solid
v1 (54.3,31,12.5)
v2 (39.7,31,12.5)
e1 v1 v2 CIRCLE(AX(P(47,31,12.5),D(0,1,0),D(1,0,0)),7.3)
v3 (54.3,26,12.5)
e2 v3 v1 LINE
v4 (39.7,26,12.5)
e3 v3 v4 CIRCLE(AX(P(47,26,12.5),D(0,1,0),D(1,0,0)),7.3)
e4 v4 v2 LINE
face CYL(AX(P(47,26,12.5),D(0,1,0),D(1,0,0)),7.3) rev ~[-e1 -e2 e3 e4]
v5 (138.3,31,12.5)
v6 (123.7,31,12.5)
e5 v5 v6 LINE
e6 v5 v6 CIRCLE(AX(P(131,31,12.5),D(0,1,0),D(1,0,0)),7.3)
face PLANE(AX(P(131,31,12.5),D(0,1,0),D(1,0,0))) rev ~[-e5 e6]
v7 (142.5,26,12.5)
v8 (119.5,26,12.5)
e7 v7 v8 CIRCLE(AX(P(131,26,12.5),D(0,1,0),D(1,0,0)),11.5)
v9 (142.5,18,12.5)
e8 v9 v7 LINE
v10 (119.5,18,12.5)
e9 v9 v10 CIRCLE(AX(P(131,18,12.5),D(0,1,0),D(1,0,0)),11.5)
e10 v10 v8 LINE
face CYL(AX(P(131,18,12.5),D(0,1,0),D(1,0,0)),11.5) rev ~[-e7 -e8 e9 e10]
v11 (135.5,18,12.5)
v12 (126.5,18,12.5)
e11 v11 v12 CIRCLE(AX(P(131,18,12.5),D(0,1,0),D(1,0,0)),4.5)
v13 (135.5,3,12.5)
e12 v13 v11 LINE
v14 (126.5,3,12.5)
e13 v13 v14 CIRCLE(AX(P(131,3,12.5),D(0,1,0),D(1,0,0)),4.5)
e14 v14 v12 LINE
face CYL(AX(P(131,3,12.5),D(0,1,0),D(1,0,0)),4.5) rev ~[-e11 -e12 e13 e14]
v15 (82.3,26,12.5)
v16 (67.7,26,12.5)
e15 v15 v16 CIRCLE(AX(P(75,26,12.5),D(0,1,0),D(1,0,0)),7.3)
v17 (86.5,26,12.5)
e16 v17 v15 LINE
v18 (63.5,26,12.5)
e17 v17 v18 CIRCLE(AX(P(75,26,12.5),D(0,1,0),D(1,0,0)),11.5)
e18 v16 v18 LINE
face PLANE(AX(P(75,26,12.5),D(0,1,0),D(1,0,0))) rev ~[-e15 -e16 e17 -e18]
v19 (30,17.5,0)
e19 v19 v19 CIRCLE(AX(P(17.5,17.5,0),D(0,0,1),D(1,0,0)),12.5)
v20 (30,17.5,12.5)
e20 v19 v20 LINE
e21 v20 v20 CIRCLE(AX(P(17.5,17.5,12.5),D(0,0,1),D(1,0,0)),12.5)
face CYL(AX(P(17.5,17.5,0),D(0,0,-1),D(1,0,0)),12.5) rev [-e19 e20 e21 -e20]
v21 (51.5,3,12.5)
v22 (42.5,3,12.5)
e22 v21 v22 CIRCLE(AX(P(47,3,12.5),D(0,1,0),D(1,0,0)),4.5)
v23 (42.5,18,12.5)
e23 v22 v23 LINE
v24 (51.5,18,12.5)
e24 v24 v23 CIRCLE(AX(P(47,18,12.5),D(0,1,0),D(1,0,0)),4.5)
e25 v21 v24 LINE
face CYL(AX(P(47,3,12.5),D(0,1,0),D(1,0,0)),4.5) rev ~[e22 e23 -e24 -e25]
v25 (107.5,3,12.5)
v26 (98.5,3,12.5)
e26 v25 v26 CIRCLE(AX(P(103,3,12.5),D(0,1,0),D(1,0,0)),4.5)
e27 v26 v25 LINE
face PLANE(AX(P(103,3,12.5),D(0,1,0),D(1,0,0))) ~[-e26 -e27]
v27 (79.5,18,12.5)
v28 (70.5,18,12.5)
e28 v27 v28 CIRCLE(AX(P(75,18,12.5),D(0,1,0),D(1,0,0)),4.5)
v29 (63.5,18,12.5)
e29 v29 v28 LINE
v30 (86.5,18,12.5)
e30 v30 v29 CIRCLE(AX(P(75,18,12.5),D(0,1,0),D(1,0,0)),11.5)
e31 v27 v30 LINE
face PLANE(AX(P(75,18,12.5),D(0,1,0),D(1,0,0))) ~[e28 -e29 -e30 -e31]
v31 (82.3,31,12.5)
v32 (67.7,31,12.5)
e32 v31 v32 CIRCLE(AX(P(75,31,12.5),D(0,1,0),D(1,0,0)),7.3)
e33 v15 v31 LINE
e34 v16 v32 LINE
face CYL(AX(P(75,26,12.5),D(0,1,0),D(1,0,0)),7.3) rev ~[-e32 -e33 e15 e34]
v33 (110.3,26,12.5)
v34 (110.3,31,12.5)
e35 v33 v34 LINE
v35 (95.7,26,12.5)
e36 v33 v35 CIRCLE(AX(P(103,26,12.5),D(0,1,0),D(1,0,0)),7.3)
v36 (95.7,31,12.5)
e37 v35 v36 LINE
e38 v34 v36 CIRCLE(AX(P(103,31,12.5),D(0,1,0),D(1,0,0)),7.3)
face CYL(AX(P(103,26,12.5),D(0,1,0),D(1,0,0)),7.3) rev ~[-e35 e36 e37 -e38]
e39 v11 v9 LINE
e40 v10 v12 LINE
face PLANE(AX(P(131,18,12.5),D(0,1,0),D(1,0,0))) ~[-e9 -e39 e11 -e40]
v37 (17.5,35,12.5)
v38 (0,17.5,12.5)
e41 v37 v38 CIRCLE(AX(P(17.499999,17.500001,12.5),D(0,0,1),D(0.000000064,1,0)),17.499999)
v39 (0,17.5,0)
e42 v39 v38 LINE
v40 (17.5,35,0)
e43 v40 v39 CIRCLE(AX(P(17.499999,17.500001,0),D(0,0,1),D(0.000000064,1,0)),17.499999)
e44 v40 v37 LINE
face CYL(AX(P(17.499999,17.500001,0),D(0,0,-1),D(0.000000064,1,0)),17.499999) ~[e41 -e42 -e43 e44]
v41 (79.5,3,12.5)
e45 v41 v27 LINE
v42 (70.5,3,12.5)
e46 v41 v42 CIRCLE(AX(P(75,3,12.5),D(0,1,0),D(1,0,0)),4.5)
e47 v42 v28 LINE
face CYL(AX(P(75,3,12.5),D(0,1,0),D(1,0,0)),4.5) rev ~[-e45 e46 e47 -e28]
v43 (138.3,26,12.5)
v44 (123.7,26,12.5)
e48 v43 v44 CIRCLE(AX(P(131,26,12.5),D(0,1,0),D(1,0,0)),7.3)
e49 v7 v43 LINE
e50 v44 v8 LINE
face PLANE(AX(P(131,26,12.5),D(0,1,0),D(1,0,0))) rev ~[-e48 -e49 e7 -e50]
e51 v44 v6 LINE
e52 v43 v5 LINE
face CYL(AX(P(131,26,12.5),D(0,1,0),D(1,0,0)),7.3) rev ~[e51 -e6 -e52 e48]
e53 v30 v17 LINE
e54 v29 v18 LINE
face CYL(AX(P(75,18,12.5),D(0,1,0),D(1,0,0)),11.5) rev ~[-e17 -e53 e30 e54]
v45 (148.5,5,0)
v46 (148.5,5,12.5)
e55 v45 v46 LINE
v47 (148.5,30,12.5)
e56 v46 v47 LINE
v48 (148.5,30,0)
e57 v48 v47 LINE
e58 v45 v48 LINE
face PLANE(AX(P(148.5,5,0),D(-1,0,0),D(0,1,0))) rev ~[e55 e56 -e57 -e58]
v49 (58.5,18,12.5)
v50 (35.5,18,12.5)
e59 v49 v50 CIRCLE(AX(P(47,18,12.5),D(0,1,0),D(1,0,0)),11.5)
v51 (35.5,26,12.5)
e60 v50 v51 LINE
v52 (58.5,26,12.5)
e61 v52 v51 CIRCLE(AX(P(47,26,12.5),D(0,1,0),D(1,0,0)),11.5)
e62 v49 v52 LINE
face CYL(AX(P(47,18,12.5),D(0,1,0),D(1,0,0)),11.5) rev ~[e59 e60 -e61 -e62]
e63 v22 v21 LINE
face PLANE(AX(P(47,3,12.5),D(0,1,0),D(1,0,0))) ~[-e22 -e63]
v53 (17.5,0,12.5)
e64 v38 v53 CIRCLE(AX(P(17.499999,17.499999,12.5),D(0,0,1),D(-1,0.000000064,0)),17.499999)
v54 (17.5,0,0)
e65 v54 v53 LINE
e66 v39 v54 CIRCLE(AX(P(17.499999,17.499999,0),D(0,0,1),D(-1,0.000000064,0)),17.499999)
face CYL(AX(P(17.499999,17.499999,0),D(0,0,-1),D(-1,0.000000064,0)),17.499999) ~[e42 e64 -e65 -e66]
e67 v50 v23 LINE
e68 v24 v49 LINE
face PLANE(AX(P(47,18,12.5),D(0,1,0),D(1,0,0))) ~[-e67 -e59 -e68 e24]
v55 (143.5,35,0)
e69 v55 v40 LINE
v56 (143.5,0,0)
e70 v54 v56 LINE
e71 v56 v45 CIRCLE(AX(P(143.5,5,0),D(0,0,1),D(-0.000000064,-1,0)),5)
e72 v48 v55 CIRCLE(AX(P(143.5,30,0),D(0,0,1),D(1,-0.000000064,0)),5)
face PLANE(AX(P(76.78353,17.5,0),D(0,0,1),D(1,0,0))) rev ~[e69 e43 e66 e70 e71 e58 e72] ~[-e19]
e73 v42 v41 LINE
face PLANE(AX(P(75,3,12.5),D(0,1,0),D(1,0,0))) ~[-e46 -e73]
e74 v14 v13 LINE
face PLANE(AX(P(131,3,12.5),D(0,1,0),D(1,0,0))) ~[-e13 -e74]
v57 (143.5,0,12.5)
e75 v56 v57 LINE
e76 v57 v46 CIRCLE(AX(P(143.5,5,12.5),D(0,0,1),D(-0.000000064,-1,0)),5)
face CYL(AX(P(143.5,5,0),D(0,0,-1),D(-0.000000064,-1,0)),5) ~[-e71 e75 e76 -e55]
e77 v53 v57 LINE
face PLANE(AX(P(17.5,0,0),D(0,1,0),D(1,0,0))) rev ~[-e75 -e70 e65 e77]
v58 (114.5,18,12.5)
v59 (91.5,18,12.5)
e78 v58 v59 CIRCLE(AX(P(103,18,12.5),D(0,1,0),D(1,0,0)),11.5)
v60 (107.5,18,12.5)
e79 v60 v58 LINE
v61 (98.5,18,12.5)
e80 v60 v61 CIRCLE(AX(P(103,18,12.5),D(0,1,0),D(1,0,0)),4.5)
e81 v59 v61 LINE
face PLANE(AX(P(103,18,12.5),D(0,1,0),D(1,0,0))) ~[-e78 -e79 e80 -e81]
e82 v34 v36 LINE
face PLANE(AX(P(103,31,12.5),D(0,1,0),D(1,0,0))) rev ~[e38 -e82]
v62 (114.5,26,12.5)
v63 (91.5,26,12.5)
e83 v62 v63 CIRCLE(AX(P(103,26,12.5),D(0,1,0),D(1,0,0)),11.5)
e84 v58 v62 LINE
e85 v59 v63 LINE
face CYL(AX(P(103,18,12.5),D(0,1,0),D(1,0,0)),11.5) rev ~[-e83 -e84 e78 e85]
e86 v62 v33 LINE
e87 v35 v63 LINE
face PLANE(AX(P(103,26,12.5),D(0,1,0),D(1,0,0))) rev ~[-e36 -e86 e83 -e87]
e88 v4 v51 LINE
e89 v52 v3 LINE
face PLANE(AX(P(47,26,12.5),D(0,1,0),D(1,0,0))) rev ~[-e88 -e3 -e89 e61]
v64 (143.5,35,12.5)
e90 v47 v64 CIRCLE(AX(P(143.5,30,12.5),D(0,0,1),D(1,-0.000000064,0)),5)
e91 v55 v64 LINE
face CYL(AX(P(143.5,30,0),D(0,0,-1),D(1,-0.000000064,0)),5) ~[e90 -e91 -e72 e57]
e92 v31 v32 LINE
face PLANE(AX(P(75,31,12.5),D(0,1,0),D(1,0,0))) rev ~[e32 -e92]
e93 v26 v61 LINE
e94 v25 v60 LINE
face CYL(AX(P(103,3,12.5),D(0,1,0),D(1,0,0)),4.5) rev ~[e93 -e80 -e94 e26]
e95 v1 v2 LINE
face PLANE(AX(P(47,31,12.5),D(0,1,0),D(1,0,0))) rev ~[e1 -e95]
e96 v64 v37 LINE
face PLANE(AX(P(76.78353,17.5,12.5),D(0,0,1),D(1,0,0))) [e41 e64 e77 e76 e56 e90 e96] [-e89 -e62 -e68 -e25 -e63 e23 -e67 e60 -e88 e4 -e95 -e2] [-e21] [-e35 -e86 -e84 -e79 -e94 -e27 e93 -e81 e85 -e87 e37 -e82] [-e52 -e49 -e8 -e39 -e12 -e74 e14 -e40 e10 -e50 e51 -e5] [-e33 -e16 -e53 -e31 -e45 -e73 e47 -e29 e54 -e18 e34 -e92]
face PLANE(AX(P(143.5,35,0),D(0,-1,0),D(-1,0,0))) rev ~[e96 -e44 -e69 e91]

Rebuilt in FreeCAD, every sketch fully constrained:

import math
import FreeCAD as App
import Part
import Sketcher

V = App.Vector

doc = App.newDocument("Part")
params = doc.addObject("Spreadsheet::Sheet", "Params")
for row, (alias, value) in enumerate([
    ("sketch1_diameter", "25 mm"),
    ("sketch1_radius", "5 mm"),
    ("sketch1_radius2", "17.499999 mm"),
    ("sketch1_width", "126 mm"),
    ("pad1_length", "12.5 mm"),
    ("sketch2_width", "7 mm"),
    ("sketch2_height", "15 mm"),
    ("sketch2_height2", "8 mm"),
    ("sketch2_height3", "5 mm"),
    ("sketch2_width2", "4.5 mm"),
    ("groove_angle", "360 deg"),
    ("sketch3_width", "7 mm"),
    ("sketch3_height", "15 mm"),
    ("sketch3_height2", "8 mm"),
    ("sketch3_height3", "5 mm"),
    ("sketch3_width2", "4.5 mm"),
    ("groove2_angle", "360 deg"),
    ("sketch4_width", "7 mm"),
    ("sketch4_height", "15 mm"),
    ("sketch4_height2", "8 mm"),
    ("sketch4_height3", "5 mm"),
    ("sketch4_width2", "4.5 mm"),
    ("groove3_angle", "360 deg"),
    ("sketch5_width", "7 mm"),
    ("sketch5_height", "15 mm"),
    ("sketch5_height2", "8 mm"),
    ("sketch5_height3", "5 mm"),
    ("sketch5_width2", "4.5 mm"),
    ("groove4_angle", "360 deg"),
], start=1):
    params.set(f"A{row}", alias)
    params.set(f"B{row}", "=" + value)
    params.setAlias(f"B{row}", alias)

body = doc.addObject("PartDesign::Body", "Body")

# Sketch on XY plane
sketch1 = body.newObject("Sketcher::SketchObject", "Sketch")
sketch1.AttachmentSupport = (doc.getObject("XY_Plane"), [""])
sketch1.MapMode = "FlatFace"
sketch1.addGeometry([
    Part.ArcOfCircle(Part.Circle(V(17.5, 17.5, 0), V(0, 0, 1), 17.5), math.radians(180), math.radians(270)),  # 0
    Part.LineSegment(V(17.5, 0, 0), V(143.5, 0, 0)),  # 1
    Part.ArcOfCircle(Part.Circle(V(143.5, 5, 0), V(0, 0, 1), 5), math.radians(-90), math.radians(0)),  # 2
    Part.LineSegment(V(148.5, 5, 0), V(148.5, 30, 0)),  # 3
    Part.ArcOfCircle(Part.Circle(V(143.5, 30, 0), V(0, 0, 1), 5), math.radians(0), math.radians(90)),  # 4
    Part.LineSegment(V(143.5, 35, 0), V(17.5, 35, 0)),  # 5
    Part.ArcOfCircle(Part.Circle(V(17.5, 17.5, 0), V(0, 0, 1), 17.5), math.radians(90), math.radians(180)),  # 6
    Part.Circle(V(17.5, 17.5, 0), V(0, 0, 1), 12.5),  # 7
], False)
sketch1.addConstraint([
    Sketcher.Constraint("Tangent", 0, 2, 1, 1),
    Sketcher.Constraint("Tangent", 1, 2, 2, 1),
    Sketcher.Constraint("Tangent", 2, 2, 3, 1),
    Sketcher.Constraint("Tangent", 3, 2, 4, 1),
    Sketcher.Constraint("Tangent", 4, 2, 5, 1),
    Sketcher.Constraint("Tangent", 5, 2, 6, 1),
    Sketcher.Constraint("Tangent", 6, 2, 0, 1),
    Sketcher.Constraint("Horizontal", 1),
    Sketcher.Constraint("Vertical", 3),
    Sketcher.Constraint("Horizontal", 5),
    Sketcher.Constraint("Coincident", 7, 3, 0, 3),
    Sketcher.Constraint("Equal", 2, 4),
    Sketcher.Constraint("Equal", 0, 6),
    Sketcher.Constraint("PointOnObject", 0, 2, -1),
    Sketcher.Constraint("PointOnObject", 6, 2, -2),
    Sketcher.Constraint("Horizontal", 7, 3, 6, 2),
    Sketcher.Constraint("Diameter", 7, 25.0),
    Sketcher.Constraint("Radius", 2, 5.0),
    Sketcher.Constraint("Radius", 0, 17.499999),
    Sketcher.Constraint("DistanceX", 1, 1, 1, 2, 126.0),
])
sketch1.setExpression("Constraints[16]", "Params.sketch1_diameter")
sketch1.setExpression("Constraints[17]", "Params.sketch1_radius")
sketch1.setExpression("Constraints[18]", "Params.sketch1_radius2")
sketch1.setExpression("Constraints[19]", "Params.sketch1_width")
pad1 = body.newObject("PartDesign::Pad", "Pad")
pad1.Profile = sketch1
pad1.setExpression("Length", "Params.pad1_length")

# Sketch on XY plane
sketch2 = body.newObject("Sketcher::SketchObject", "Sketch001")
sketch2.AttachmentSupport = (doc.getObject("XY_Plane"), [""])
sketch2.MapMode = "FlatFace"
sketch2.AttachmentOffset = App.Placement(V(0, 0, 12.5), App.Rotation())
sketch2.addGeometry([
    Part.LineSegment(V(47, 3, 0), V(51.5, 3, 0)),  # 0
    Part.LineSegment(V(51.5, 3, 0), V(51.5, 18, 0)),  # 1
    Part.LineSegment(V(51.5, 18, 0), V(58.5, 18, 0)),  # 2
    Part.LineSegment(V(58.5, 18, 0), V(58.5, 26, 0)),  # 3
    Part.LineSegment(V(58.5, 26, 0), V(54.3, 26, 0)),  # 4
    Part.LineSegment(V(54.3, 26, 0), V(54.3, 31, 0)),  # 5
    Part.LineSegment(V(54.3, 31, 0), V(47, 31, 0)),  # 6
    Part.LineSegment(V(47, 31, 0), V(47, 3, 0)),  # 7
], False)
sketch2.addGeometry(Part.LineSegment(V(47, 3, 0), V(47, 31, 0)), True)  # axis
sketch2.addConstraint([
    Sketcher.Constraint("Coincident", 0, 2, 1, 1),
    Sketcher.Constraint("Coincident", 1, 2, 2, 1),
    Sketcher.Constraint("Coincident", 2, 2, 3, 1),
    Sketcher.Constraint("Coincident", 3, 2, 4, 1),
    Sketcher.Constraint("Coincident", 4, 2, 5, 1),
    Sketcher.Constraint("Coincident", 5, 2, 6, 1),
    Sketcher.Constraint("Coincident", 6, 2, 7, 1),
    Sketcher.Constraint("Coincident", 7, 2, 0, 1),
    Sketcher.Constraint("Horizontal", 0),
    Sketcher.Constraint("Vertical", 1),
    Sketcher.Constraint("Horizontal", 2),
    Sketcher.Constraint("Vertical", 3),
    Sketcher.Constraint("Horizontal", 4),
    Sketcher.Constraint("Vertical", 5),
    Sketcher.Constraint("Horizontal", 6),
    Sketcher.Constraint("Vertical", 7),
    Sketcher.Constraint("Vertical", 8),
    Sketcher.Constraint("Coincident", 8, 1, 7, 2),
    Sketcher.Constraint("Horizontal", 5, 2, 8, 2),
    Sketcher.Constraint("DistanceX", 2, 1, 2, 2, 7.0),
    Sketcher.Constraint("DistanceY", 1, 1, 1, 2, 15.0),
    Sketcher.Constraint("DistanceY", 3, 1, 3, 2, 8.0),
    Sketcher.Constraint("DistanceY", 5, 1, 5, 2, 5.0),
    Sketcher.Constraint("DistanceX", 0, 1, 0, 2, 4.5),
    Sketcher.Constraint("DistanceX", 4, 2, 4, 1, 4.2),
    Sketcher.Constraint("DistanceY", -1, 1, 0, 2, 3.0),
    Sketcher.Constraint("DistanceX", -1, 1, 6, 2, 47.0),
])
sketch2.setExpression("Constraints[19]", "Params.sketch2_width")
sketch2.setExpression("Constraints[20]", "Params.sketch2_height")
sketch2.setExpression("Constraints[21]", "Params.sketch2_height2")
sketch2.setExpression("Constraints[22]", "Params.sketch2_height3")
sketch2.setExpression("Constraints[23]", "Params.sketch2_width2")
groove = body.newObject("PartDesign::Groove", "Groove")
groove.Profile = sketch2
groove.ReferenceAxis = (sketch2, ["Axis0"])
groove.setExpression("Angle", "Params.groove_angle")

# Sketch on XY plane
sketch3 = body.newObject("Sketcher::SketchObject", "Sketch002")
sketch3.AttachmentSupport = (doc.getObject("XY_Plane"), [""])
sketch3.MapMode = "FlatFace"
sketch3.AttachmentOffset = App.Placement(V(0, 0, 12.5), App.Rotation())
sketch3.addGeometry([
    Part.LineSegment(V(75, 3, 0), V(79.5, 3, 0)),  # 0
    Part.LineSegment(V(79.5, 3, 0), V(79.5, 18, 0)),  # 1
    Part.LineSegment(V(79.5, 18, 0), V(86.5, 18, 0)),  # 2
    Part.LineSegment(V(86.5, 18, 0), V(86.5, 26, 0)),  # 3
    Part.LineSegment(V(86.5, 26, 0), V(82.3, 26, 0)),  # 4
    Part.LineSegment(V(82.3, 26, 0), V(82.3, 31, 0)),  # 5
    Part.LineSegment(V(82.3, 31, 0), V(75, 31, 0)),  # 6
    Part.LineSegment(V(75, 31, 0), V(75, 3, 0)),  # 7
], False)
sketch3.addGeometry(Part.LineSegment(V(75, 3, 0), V(75, 31, 0)), True)  # axis
sketch3.addConstraint([
    Sketcher.Constraint("Coincident", 0, 2, 1, 1),
    Sketcher.Constraint("Coincident", 1, 2, 2, 1),
    Sketcher.Constraint("Coincident", 2, 2, 3, 1),
    Sketcher.Constraint("Coincident", 3, 2, 4, 1),
    Sketcher.Constraint("Coincident", 4, 2, 5, 1),
    Sketcher.Constraint("Coincident", 5, 2, 6, 1),
    Sketcher.Constraint("Coincident", 6, 2, 7, 1),
    Sketcher.Constraint("Coincident", 7, 2, 0, 1),
    Sketcher.Constraint("Horizontal", 0),
    Sketcher.Constraint("Vertical", 1),
    Sketcher.Constraint("Horizontal", 2),
    Sketcher.Constraint("Vertical", 3),
    Sketcher.Constraint("Horizontal", 4),
    Sketcher.Constraint("Vertical", 5),
    Sketcher.Constraint("Horizontal", 6),
    Sketcher.Constraint("Vertical", 7),
    Sketcher.Constraint("Vertical", 8),
    Sketcher.Constraint("Coincident", 8, 1, 7, 2),
    Sketcher.Constraint("Horizontal", 5, 2, 8, 2),
    Sketcher.Constraint("DistanceX", 2, 1, 2, 2, 7.0),
    Sketcher.Constraint("DistanceY", 1, 1, 1, 2, 15.0),
    Sketcher.Constraint("DistanceY", 3, 1, 3, 2, 8.0),
    Sketcher.Constraint("DistanceY", 5, 1, 5, 2, 5.0),
    Sketcher.Constraint("DistanceX", 0, 1, 0, 2, 4.5),
    Sketcher.Constraint("DistanceX", 4, 2, 4, 1, 4.2),
    Sketcher.Constraint("DistanceY", -1, 1, 0, 2, 3.0),
    Sketcher.Constraint("DistanceX", -1, 1, 6, 2, 75.0),
])
sketch3.setExpression("Constraints[19]", "Params.sketch3_width")
sketch3.setExpression("Constraints[20]", "Params.sketch3_height")
sketch3.setExpression("Constraints[21]", "Params.sketch3_height2")
sketch3.setExpression("Constraints[22]", "Params.sketch3_height3")
sketch3.setExpression("Constraints[23]", "Params.sketch3_width2")
groove2 = body.newObject("PartDesign::Groove", "Groove001")
groove2.Profile = sketch3
groove2.ReferenceAxis = (sketch3, ["Axis0"])
groove2.setExpression("Angle", "Params.groove2_angle")

# Sketch on XY plane
sketch4 = body.newObject("Sketcher::SketchObject", "Sketch003")
sketch4.AttachmentSupport = (doc.getObject("XY_Plane"), [""])
sketch4.MapMode = "FlatFace"
sketch4.AttachmentOffset = App.Placement(V(0, 0, 12.5), App.Rotation())
sketch4.addGeometry([
    Part.LineSegment(V(103, 3, 0), V(107.5, 3, 0)),  # 0
    Part.LineSegment(V(107.5, 3, 0), V(107.5, 18, 0)),  # 1
    Part.LineSegment(V(107.5, 18, 0), V(114.5, 18, 0)),  # 2
    Part.LineSegment(V(114.5, 18, 0), V(114.5, 26, 0)),  # 3
    Part.LineSegment(V(114.5, 26, 0), V(110.3, 26, 0)),  # 4
    Part.LineSegment(V(110.3, 26, 0), V(110.3, 31, 0)),  # 5
    Part.LineSegment(V(110.3, 31, 0), V(103, 31, 0)),  # 6
    Part.LineSegment(V(103, 31, 0), V(103, 3, 0)),  # 7
], False)
sketch4.addGeometry(Part.LineSegment(V(103, 3, 0), V(103, 31, 0)), True)  # axis
sketch4.addConstraint([
    Sketcher.Constraint("Coincident", 0, 2, 1, 1),
    Sketcher.Constraint("Coincident", 1, 2, 2, 1),
    Sketcher.Constraint("Coincident", 2, 2, 3, 1),
    Sketcher.Constraint("Coincident", 3, 2, 4, 1),
    Sketcher.Constraint("Coincident", 4, 2, 5, 1),
    Sketcher.Constraint("Coincident", 5, 2, 6, 1),
    Sketcher.Constraint("Coincident", 6, 2, 7, 1),
    Sketcher.Constraint("Coincident", 7, 2, 0, 1),
    Sketcher.Constraint("Horizontal", 0),
    Sketcher.Constraint("Vertical", 1),
    Sketcher.Constraint("Horizontal", 2),
    Sketcher.Constraint("Vertical", 3),
    Sketcher.Constraint("Horizontal", 4),
    Sketcher.Constraint("Vertical", 5),
    Sketcher.Constraint("Horizontal", 6),
    Sketcher.Constraint("Vertical", 7),
    Sketcher.Constraint("Vertical", 8),
    Sketcher.Constraint("Coincident", 8, 1, 7, 2),
    Sketcher.Constraint("Horizontal", 5, 2, 8, 2),
    Sketcher.Constraint("DistanceX", 2, 1, 2, 2, 7.0),
    Sketcher.Constraint("DistanceY", 1, 1, 1, 2, 15.0),
    Sketcher.Constraint("DistanceY", 3, 1, 3, 2, 8.0),
    Sketcher.Constraint("DistanceY", 5, 1, 5, 2, 5.0),
    Sketcher.Constraint("DistanceX", 0, 1, 0, 2, 4.5),
    Sketcher.Constraint("DistanceX", 4, 2, 4, 1, 4.2),
    Sketcher.Constraint("DistanceY", -1, 1, 0, 2, 3.0),
    Sketcher.Constraint("DistanceX", -1, 1, 6, 2, 103.0),
])
sketch4.setExpression("Constraints[19]", "Params.sketch4_width")
sketch4.setExpression("Constraints[20]", "Params.sketch4_height")
sketch4.setExpression("Constraints[21]", "Params.sketch4_height2")
sketch4.setExpression("Constraints[22]", "Params.sketch4_height3")
sketch4.setExpression("Constraints[23]", "Params.sketch4_width2")
groove3 = body.newObject("PartDesign::Groove", "Groove002")
groove3.Profile = sketch4
groove3.ReferenceAxis = (sketch4, ["Axis0"])
groove3.setExpression("Angle", "Params.groove3_angle")

# Sketch on XY plane
sketch5 = body.newObject("Sketcher::SketchObject", "Sketch004")
sketch5.AttachmentSupport = (doc.getObject("XY_Plane"), [""])
sketch5.MapMode = "FlatFace"
sketch5.AttachmentOffset = App.Placement(V(0, 0, 12.5), App.Rotation())
sketch5.addGeometry([
    Part.LineSegment(V(131, 3, 0), V(135.5, 3, 0)),  # 0
    Part.LineSegment(V(135.5, 3, 0), V(135.5, 18, 0)),  # 1
    Part.LineSegment(V(135.5, 18, 0), V(142.5, 18, 0)),  # 2
    Part.LineSegment(V(142.5, 18, 0), V(142.5, 26, 0)),  # 3
    Part.LineSegment(V(142.5, 26, 0), V(138.3, 26, 0)),  # 4
    Part.LineSegment(V(138.3, 26, 0), V(138.3, 31, 0)),  # 5
    Part.LineSegment(V(138.3, 31, 0), V(131, 31, 0)),  # 6
    Part.LineSegment(V(131, 31, 0), V(131, 3, 0)),  # 7
], False)
sketch5.addGeometry(Part.LineSegment(V(131, 3, 0), V(131, 31, 0)), True)  # axis
sketch5.addConstraint([
    Sketcher.Constraint("Coincident", 0, 2, 1, 1),
    Sketcher.Constraint("Coincident", 1, 2, 2, 1),
    Sketcher.Constraint("Coincident", 2, 2, 3, 1),
    Sketcher.Constraint("Coincident", 3, 2, 4, 1),
    Sketcher.Constraint("Coincident", 4, 2, 5, 1),
    Sketcher.Constraint("Coincident", 5, 2, 6, 1),
    Sketcher.Constraint("Coincident", 6, 2, 7, 1),
    Sketcher.Constraint("Coincident", 7, 2, 0, 1),
    Sketcher.Constraint("Horizontal", 0),
    Sketcher.Constraint("Vertical", 1),
    Sketcher.Constraint("Horizontal", 2),
    Sketcher.Constraint("Vertical", 3),
    Sketcher.Constraint("Horizontal", 4),
    Sketcher.Constraint("Vertical", 5),
    Sketcher.Constraint("Horizontal", 6),
    Sketcher.Constraint("Vertical", 7),
    Sketcher.Constraint("Vertical", 8),
    Sketcher.Constraint("Coincident", 8, 1, 7, 2),
    Sketcher.Constraint("Horizontal", 5, 2, 8, 2),
    Sketcher.Constraint("DistanceX", 2, 1, 2, 2, 7.0),
    Sketcher.Constraint("DistanceY", 1, 1, 1, 2, 15.0),
    Sketcher.Constraint("DistanceY", 3, 1, 3, 2, 8.0),
    Sketcher.Constraint("DistanceY", 5, 1, 5, 2, 5.0),
    Sketcher.Constraint("DistanceX", 0, 1, 0, 2, 4.5),
    Sketcher.Constraint("DistanceX", 4, 2, 4, 1, 4.2),
    Sketcher.Constraint("DistanceY", -1, 1, 0, 2, 3.0),
    Sketcher.Constraint("DistanceX", -1, 1, 6, 2, 131.0),
])
sketch5.setExpression("Constraints[19]", "Params.sketch5_width")
sketch5.setExpression("Constraints[20]", "Params.sketch5_height")
sketch5.setExpression("Constraints[21]", "Params.sketch5_height2")
sketch5.setExpression("Constraints[22]", "Params.sketch5_height3")
sketch5.setExpression("Constraints[23]", "Params.sketch5_width2")
groove4 = body.newObject("PartDesign::Groove", "Groove003")
groove4.Profile = sketch5
groove4.ReferenceAxis = (sketch5, ["Axis0"])
groove4.setExpression("Angle", "Params.groove4_angle")

doc.recompute()
